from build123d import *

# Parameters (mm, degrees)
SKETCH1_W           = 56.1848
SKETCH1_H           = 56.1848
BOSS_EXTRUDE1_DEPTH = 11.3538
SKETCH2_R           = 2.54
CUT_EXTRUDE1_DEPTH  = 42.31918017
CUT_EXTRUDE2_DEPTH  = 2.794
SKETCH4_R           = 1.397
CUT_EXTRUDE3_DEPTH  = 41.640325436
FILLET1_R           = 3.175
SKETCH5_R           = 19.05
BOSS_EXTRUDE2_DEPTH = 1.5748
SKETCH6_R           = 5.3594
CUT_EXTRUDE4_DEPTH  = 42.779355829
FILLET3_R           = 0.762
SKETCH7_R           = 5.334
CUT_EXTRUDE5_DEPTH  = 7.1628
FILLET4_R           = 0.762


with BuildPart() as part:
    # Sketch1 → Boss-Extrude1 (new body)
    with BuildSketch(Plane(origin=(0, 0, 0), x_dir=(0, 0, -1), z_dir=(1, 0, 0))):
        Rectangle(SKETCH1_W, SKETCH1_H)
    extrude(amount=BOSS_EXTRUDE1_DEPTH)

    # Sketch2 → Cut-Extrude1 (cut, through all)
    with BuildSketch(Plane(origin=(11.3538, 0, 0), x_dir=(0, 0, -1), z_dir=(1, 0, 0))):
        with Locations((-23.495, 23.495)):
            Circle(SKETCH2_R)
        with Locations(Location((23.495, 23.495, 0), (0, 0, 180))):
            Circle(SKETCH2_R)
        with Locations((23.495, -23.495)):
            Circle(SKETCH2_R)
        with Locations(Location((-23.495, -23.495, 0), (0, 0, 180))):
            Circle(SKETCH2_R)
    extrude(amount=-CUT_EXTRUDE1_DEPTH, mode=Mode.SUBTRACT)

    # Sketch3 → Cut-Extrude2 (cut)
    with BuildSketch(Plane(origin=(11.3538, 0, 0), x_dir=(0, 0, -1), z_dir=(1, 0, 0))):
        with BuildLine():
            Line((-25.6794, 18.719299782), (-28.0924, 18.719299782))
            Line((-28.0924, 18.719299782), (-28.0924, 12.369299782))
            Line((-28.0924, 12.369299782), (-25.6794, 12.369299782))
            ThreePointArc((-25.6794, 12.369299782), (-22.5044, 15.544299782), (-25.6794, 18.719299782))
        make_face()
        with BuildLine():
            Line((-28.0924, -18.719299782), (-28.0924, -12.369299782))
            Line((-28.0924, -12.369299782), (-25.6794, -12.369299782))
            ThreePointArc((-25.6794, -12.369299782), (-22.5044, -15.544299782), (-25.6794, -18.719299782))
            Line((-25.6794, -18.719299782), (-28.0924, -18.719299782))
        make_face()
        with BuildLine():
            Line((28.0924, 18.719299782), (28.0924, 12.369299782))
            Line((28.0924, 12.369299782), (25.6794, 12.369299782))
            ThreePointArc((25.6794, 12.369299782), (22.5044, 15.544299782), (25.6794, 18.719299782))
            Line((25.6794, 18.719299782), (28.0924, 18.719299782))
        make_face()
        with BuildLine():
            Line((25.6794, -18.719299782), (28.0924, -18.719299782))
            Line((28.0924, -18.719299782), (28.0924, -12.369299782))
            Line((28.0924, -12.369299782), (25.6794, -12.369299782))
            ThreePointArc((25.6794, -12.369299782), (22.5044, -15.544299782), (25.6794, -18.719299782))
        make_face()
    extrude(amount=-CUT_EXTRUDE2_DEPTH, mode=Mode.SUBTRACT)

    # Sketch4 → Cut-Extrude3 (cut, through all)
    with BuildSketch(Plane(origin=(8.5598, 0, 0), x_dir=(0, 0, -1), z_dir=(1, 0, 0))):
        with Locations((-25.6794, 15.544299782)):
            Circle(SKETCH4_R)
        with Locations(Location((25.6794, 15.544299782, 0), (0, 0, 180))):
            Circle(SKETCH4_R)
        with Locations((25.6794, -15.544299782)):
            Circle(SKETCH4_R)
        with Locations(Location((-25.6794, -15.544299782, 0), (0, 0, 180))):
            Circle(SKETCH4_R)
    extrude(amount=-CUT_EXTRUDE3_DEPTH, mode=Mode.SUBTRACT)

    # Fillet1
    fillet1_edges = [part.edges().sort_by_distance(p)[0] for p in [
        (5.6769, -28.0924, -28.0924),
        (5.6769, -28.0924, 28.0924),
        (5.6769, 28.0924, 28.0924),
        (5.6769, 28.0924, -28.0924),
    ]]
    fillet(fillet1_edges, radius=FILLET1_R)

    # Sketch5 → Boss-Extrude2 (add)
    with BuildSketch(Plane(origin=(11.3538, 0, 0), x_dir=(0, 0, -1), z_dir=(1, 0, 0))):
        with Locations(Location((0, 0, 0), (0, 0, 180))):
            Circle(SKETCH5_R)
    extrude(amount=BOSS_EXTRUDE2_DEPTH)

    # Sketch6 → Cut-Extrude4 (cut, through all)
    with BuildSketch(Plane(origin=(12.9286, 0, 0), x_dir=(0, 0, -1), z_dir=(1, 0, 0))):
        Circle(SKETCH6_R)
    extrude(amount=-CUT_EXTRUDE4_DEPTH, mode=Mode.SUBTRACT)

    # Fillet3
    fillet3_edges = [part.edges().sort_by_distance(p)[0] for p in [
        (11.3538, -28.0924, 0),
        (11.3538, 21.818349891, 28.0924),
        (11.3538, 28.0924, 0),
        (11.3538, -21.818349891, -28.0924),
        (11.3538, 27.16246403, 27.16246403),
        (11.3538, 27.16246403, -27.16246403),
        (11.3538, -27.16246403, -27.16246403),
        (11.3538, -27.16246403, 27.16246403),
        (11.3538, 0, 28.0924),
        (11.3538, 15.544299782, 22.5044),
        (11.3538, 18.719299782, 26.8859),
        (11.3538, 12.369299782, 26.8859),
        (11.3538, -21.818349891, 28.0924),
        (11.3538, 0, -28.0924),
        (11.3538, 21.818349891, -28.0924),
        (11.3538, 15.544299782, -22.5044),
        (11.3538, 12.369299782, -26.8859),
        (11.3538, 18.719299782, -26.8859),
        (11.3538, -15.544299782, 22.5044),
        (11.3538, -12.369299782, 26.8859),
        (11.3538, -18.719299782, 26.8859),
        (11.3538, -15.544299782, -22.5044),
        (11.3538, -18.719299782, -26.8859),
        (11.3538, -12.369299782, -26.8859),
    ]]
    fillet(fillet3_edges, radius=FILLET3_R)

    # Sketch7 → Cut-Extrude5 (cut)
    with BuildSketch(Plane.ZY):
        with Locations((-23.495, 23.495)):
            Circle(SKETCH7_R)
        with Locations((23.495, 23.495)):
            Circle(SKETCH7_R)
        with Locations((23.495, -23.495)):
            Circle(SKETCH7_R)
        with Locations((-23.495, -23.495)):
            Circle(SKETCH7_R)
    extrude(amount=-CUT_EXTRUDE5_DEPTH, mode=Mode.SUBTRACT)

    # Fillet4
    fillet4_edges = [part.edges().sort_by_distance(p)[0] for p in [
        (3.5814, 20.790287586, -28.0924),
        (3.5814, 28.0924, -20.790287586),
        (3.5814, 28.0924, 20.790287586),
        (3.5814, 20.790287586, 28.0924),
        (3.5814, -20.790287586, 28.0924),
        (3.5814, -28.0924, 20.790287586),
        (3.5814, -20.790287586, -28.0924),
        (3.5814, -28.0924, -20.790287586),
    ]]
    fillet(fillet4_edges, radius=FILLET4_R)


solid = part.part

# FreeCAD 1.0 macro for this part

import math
import FreeCAD as App
import Part
import Sketcher

V = App.Vector
Q = App.Units.Quantity


def edges_at(feature, points):
    """Names of the edges that pass closest to the given points."""
    edges = feature.Shape.Edges
    near = lambda p: min(range(len(edges)), key=lambda i: edges[i].distToShape(Part.Vertex(*p))[0])
    return sorted({f"Edge{near(p) + 1}" for p in points})


def add_polygon(sketch, points):
    """Adds a closed chain of lines whose ends are joined by coincident constraints."""
    first, n = sketch.GeometryCount, len(points)
    for a, b in zip(points, points[1:] + points[:1]):
        sketch.addGeometry(Part.LineSegment(App.Vector(*a, 0), App.Vector(*b, 0)), False)
    for i in range(n):
        sketch.addConstraint(Sketcher.Constraint("Coincident", first + i, 2, first + (i + 1) % n, 1))

doc = App.newDocument("Part")
body = doc.addObject("PartDesign::Body", "Body")

# Sketch on YZ plane
sketch1 = body.newObject("Sketcher::SketchObject", "Sketch")
sketch1.AttachmentSupport = (doc.getObject("YZ_Plane"), [""])
sketch1.MapMode = "FlatFace"
add_polygon(sketch1, [(28, 28), (-28, 28), (-28, -28), (28, -28)])  # lines 0-3
sketch1.addConstraint([
    Sketcher.Constraint("Horizontal", 0),
    Sketcher.Constraint("Vertical", 1),
    Sketcher.Constraint("Horizontal", 2),
    Sketcher.Constraint("Vertical", 3),
    Sketcher.Constraint("Symmetric", 0, 2, 2, 2, -1, 1),
    Sketcher.Constraint("Equal", 2, 1),
    Sketcher.Constraint("DistanceX", 0, 2, 0, 1, Q("2.212 in")),
])
pad1 = body.newObject("PartDesign::Pad", "Pad")
pad1.Profile = sketch1
pad1.Length = Q("0.447 in")

# Sketch on YZ plane
sketch2 = body.newObject("Sketcher::SketchObject", "Sketch001")
sketch2.AttachmentSupport = (doc.getObject("YZ_Plane"), [""])
sketch2.MapMode = "FlatFace"
sketch2.AttachmentOffset = App.Placement(V(0, 0, 0.447 * 25.4), App.Rotation())
sketch2.addGeometry([
    Part.Circle(V(23.5, 23.5, 0), V(0, 0, 1), 2.5),
    Part.Circle(V(23.5, -23.5, 0), V(0, 0, 1), 2.5),
    Part.Circle(V(-23.5, -23.5, 0), V(0, 0, 1), 2.5),
    Part.Circle(V(-23.5, 23.5, 0), V(0, 0, 1), 2.5),
], False)
sketch2.addConstraint([
    Sketcher.Constraint("Equal", 0, 1),
    Sketcher.Constraint("Equal", 1, 2),
    Sketcher.Constraint("Equal", 2, 3),
    Sketcher.Constraint("Symmetric", 0, 3, 2, 3, -1, 1),
    Sketcher.Constraint("Symmetric", 1, 3, 3, 3, -1, 1),
    Sketcher.Constraint("Symmetric", 1, 3, 2, 3, -2),
    Sketcher.Constraint("Diameter", 0, Q("0.2 in")),
    Sketcher.Constraint("DistanceY", 1, 3, 0, 3, Q("1.85 in")),
    Sketcher.Constraint("DistanceX", 2, 3, 1, 3, Q("1.85 in")),
])
pocket1 = body.newObject("PartDesign::Pocket", "Pocket")
pocket1.Profile = sketch2
pocket1.Type = "ThroughAll"

# Sketch on YZ plane
sketch3 = body.newObject("Sketcher::SketchObject", "Sketch002")
sketch3.AttachmentSupport = (doc.getObject("YZ_Plane"), [""])
sketch3.MapMode = "FlatFace"
sketch3.AttachmentOffset = App.Placement(V(0, 0, 0.447 * 25.4), App.Rotation())
sketch3.addGeometry([
    Part.LineSegment(V(18.7, 25.7, 0), V(18.7, 28.1, 0)),  # 0
    Part.LineSegment(V(18.7, 28.1, 0), V(12.4, 28.1, 0)),  # 1
    Part.LineSegment(V(12.4, 28.1, 0), V(12.4, 25.7, 0)),  # 2
    Part.ArcOfCircle(Part.Circle(V(15.5, 25.7, 0), V(0, 0, 1), 3.2), math.radians(180), math.radians(360)),  # 3
    Part.LineSegment(V(-12.4, 28.1, 0), V(-18.7, 28.1, 0)),  # 4
    Part.LineSegment(V(-18.7, 28.1, 0), V(-18.7, 25.7, 0)),  # 5
    Part.ArcOfCircle(Part.Circle(V(-15.5, 25.7, 0), V(0, 0, 1), 3.2), math.radians(180), math.radians(360)),  # 6
    Part.LineSegment(V(-12.4, 25.7, 0), V(-12.4, 28.1, 0)),  # 7
    Part.LineSegment(V(12.4, -28.1, 0), V(18.7, -28.1, 0)),  # 8
    Part.LineSegment(V(18.7, -28.1, 0), V(18.7, -25.7, 0)),  # 9
    Part.ArcOfCircle(Part.Circle(V(15.5, -25.7, 0), V(0, 0, 1), 3.2), math.radians(0), math.radians(180)),  # 10
    Part.LineSegment(V(12.4, -25.7, 0), V(12.4, -28.1, 0)),  # 11
    Part.LineSegment(V(-18.7, -25.7, 0), V(-18.7, -28.1, 0)),  # 12
    Part.LineSegment(V(-18.7, -28.1, 0), V(-12.4, -28.1, 0)),  # 13
    Part.LineSegment(V(-12.4, -28.1, 0), V(-12.4, -25.7, 0)),  # 14
    Part.ArcOfCircle(Part.Circle(V(-15.5, -25.7, 0), V(0, 0, 1), 3.2), math.radians(0), math.radians(180)),  # 15
], False)
sketch3.addConstraint([
    Sketcher.Constraint("Coincident", 0, 2, 1, 1),
    Sketcher.Constraint("Coincident", 1, 2, 2, 1),
    Sketcher.Constraint("Tangent", 2, 2, 3, 1),
    Sketcher.Constraint("Tangent", 3, 2, 0, 1),
    Sketcher.Constraint("Coincident", 4, 2, 5, 1),
    Sketcher.Constraint("Tangent", 5, 2, 6, 1),
    Sketcher.Constraint("Tangent", 6, 2, 7, 1),
    Sketcher.Constraint("Coincident", 7, 2, 4, 1),
    Sketcher.Constraint("Coincident", 8, 2, 9, 1),
    Sketcher.Constraint("Tangent", 9, 2, 10, 1),
    Sketcher.Constraint("Tangent", 10, 2, 11, 1),
    Sketcher.Constraint("Coincident", 11, 2, 8, 1),
    Sketcher.Constraint("Coincident", 12, 2, 13, 1),
    Sketcher.Constraint("Coincident", 13, 2, 14, 1),
    Sketcher.Constraint("Tangent", 14, 2, 15, 1),
    Sketcher.Constraint("Tangent", 15, 2, 12, 1),
    Sketcher.Constraint("Vertical", 0),
    Sketcher.Constraint("Horizontal", 1),
    Sketcher.Constraint("Vertical", 2),
    Sketcher.Constraint("Horizontal", 4),
    Sketcher.Constraint("Vertical", 5),
    Sketcher.Constraint("Vertical", 7),
    Sketcher.Constraint("Horizontal", 8),
    Sketcher.Constraint("Vertical", 9),
    Sketcher.Constraint("Vertical", 11),
    Sketcher.Constraint("Vertical", 12),
    Sketcher.Constraint("Horizontal", 13),
    Sketcher.Constraint("Vertical", 14),
    Sketcher.Constraint("Equal", 3, 6),
    Sketcher.Constraint("Equal", 6, 10),
    Sketcher.Constraint("Equal", 10, 15),
    Sketcher.Constraint("Symmetric", 6, 3, 10, 3, -1, 1),
    Sketcher.Constraint("Symmetric", 3, 3, 15, 3, -1, 1),
    Sketcher.Constraint("Symmetric", 3, 3, 6, 3, -2),
    Sketcher.Constraint("Horizontal", 1, 2, 4, 2),
    Sketcher.Constraint("Horizontal", 11, 2, 12, 2),
    Sketcher.Constraint("Equal", 7, 9),
    Sketcher.Constraint("Radius", 3, Q("0.125 in")),
    Sketcher.Constraint("DistanceY", 0, 1, 0, 2, Q("0.095 in")),
    Sketcher.Constraint("DistanceY", -1, 1, 3, 3, Q("1.011 in")),
    Sketcher.Constraint("DistanceX", -1, 1, 3, 3, Q("15.5443 mm")),
])
pocket2 = body.newObject("PartDesign::Pocket", "Pocket001")
pocket2.Profile = sketch3
pocket2.Length = Q("0.11 in")

# Sketch on YZ plane
sketch4 = body.newObject("Sketcher::SketchObject", "Sketch003")
sketch4.AttachmentSupport = (doc.getObject("YZ_Plane"), [""])
sketch4.MapMode = "FlatFace"
sketch4.AttachmentOffset = App.Placement(V(0, 0, 0.337 * 25.4), App.Rotation())
sketch4.addGeometry([
    Part.Circle(V(15.5, 25.7, 0), V(0, 0, 1), 1.4),
    Part.Circle(V(15.5, -25.7, 0), V(0, 0, 1), 1.4),
    Part.Circle(V(-15.5, -25.7, 0), V(0, 0, 1), 1.4),
    Part.Circle(V(-15.5, 25.7, 0), V(0, 0, 1), 1.4),
], False)
sketch4.addConstraint([
    Sketcher.Constraint("Equal", 0, 1),
    Sketcher.Constraint("Equal", 1, 2),
    Sketcher.Constraint("Equal", 2, 3),
    Sketcher.Constraint("Symmetric", 0, 3, 2, 3, -1, 1),
    Sketcher.Constraint("Symmetric", 1, 3, 3, 3, -1, 1),
    Sketcher.Constraint("Symmetric", 1, 3, 2, 3, -2),
    Sketcher.Constraint("Diameter", 0, Q("0.11 in")),
    Sketcher.Constraint("DistanceY", -1, 1, 0, 3, Q("1.011 in")),
    Sketcher.Constraint("DistanceX", -1, 1, 0, 3, Q("15.5443 mm")),
])
pocket3 = body.newObject("PartDesign::Pocket", "Pocket002")
pocket3.Profile = sketch4
pocket3.Type = "ThroughAll"
doc.recompute()

fillet = body.newObject("PartDesign::Fillet", "Fillet")
fillet.Base = (pocket3, edges_at(pocket3, [
    (5.677, -28.092, -28.092),
    (5.677, -28.092, 28.092),
    (5.677, 28.092, 28.092),
    (5.677, 28.092, -28.092),
]))
fillet.Radius = Q("0.125 in")

# Sketch on YZ plane
sketch5 = body.newObject("Sketcher::SketchObject", "Sketch004")
sketch5.AttachmentSupport = (doc.getObject("YZ_Plane"), [""])
sketch5.MapMode = "FlatFace"
sketch5.AttachmentOffset = App.Placement(V(0, 0, 0.447 * 25.4), App.Rotation())
sketch5.addGeometry(Part.Circle(V(0, 0, 0), V(0, 0, 1), 19), False)
sketch5.addConstraint([
    Sketcher.Constraint("Coincident", 0, 3, -1, 1),
    Sketcher.Constraint("Diameter", 0, Q("1.5 in")),
])
pad2 = body.newObject("PartDesign::Pad", "Pad001")
pad2.Profile = sketch5
pad2.Length = Q("0.062 in")

# Sketch on YZ plane
sketch6 = body.newObject("Sketcher::SketchObject", "Sketch005")
sketch6.AttachmentSupport = (doc.getObject("YZ_Plane"), [""])
sketch6.MapMode = "FlatFace"
sketch6.AttachmentOffset = App.Placement(V(0, 0, 0.509 * 25.4), App.Rotation())
sketch6.addGeometry(Part.Circle(V(0, 0, 0), V(0, 0, 1), 5), False)
sketch6.addConstraint([
    Sketcher.Constraint("Coincident", 0, 3, -1, 1),
    Sketcher.Constraint("Diameter", 0, Q("0.422 in")),
])
pocket4 = body.newObject("PartDesign::Pocket", "Pocket003")
pocket4.Profile = sketch6
pocket4.Type = "ThroughAll"
doc.recompute()

fillet2 = body.newObject("PartDesign::Fillet", "Fillet001")
fillet2.Base = (pocket4, edges_at(pocket4, [
    (11.354, -28.092, 0),
    (11.354, 21.818, 28.092),
    (11.354, 28.092, 0),
    (11.354, -21.818, -28.092),
    (11.354, 27.162, 27.162),
    (11.354, 27.162, -27.162),
    (11.354, -27.162, -27.162),
    (11.354, -27.162, 27.162),
    (11.354, 0, 28.092),
    (11.354, 15.544, 22.504),
    (11.354, 18.719, 26.886),
    (11.354, 12.369, 26.886),
    (11.354, -21.818, 28.092),
    (11.354, 0, -28.092),
    (11.354, 21.818, -28.092),
    (11.354, 15.544, -22.504),
    (11.354, 12.369, -26.886),
    (11.354, 18.719, -26.886),
    (11.354, -15.544, 22.504),
    (11.354, -12.369, 26.886),
    (11.354, -18.719, 26.886),
    (11.354, -15.544, -22.504),
    (11.354, -18.719, -26.886),
    (11.354, -12.369, -26.886),
]))
fillet2.Radius = Q("0.03 in")

# Sketch on YZ plane
sketch7 = body.newObject("Sketcher::SketchObject", "Sketch006")
sketch7.AttachmentSupport = (doc.getObject("YZ_Plane"), [""])
sketch7.MapMode = "FlatFace"
sketch7.addGeometry([
    Part.Circle(V(23, -23, 0), V(0, 0, 1), 5),
    Part.Circle(V(23, 23, 0), V(0, 0, 1), 5),
    Part.Circle(V(-23, 23, 0), V(0, 0, 1), 5),
    Part.Circle(V(-23, -23, 0), V(0, 0, 1), 5),
], False)
sketch7.addConstraint([
    Sketcher.Constraint("Equal", 0, 1),
    Sketcher.Constraint("Equal", 1, 2),
    Sketcher.Constraint("Equal", 2, 3),
    Sketcher.Constraint("Symmetric", 0, 3, 2, 3, -1, 1),
    Sketcher.Constraint("Symmetric", 1, 3, 3, 3, -1, 1),
    Sketcher.Constraint("Symmetric", 1, 3, 2, 3, -2),
    Sketcher.Constraint("Diameter", 0, Q("0.42 in")),
    Sketcher.Constraint("DistanceY", 0, 3, 1, 3, Q("1.85 in")),
    Sketcher.Constraint("DistanceX", 2, 3, 1, 3, Q("1.85 in")),
])
pocket5 = body.newObject("PartDesign::Pocket", "Pocket004")
pocket5.Profile = sketch7
pocket5.Length = Q("0.282 in")
pocket5.Reversed = True
doc.recompute()

fillet3 = body.newObject("PartDesign::Fillet", "Fillet002")
fillet3.Base = (pocket5, edges_at(pocket5, [
    (3.581, 20.79, -28.092),
    (3.581, 28.092, -20.79),
    (3.581, 28.092, 20.79),
    (3.581, 20.79, 28.092),
    (3.581, -20.79, 28.092),
    (3.581, -28.092, 20.79),
    (3.581, -20.79, -28.092),
    (3.581, -28.092, -20.79),
]))
fillet3.Radius = Q("0.03 in")

doc.recompute()
